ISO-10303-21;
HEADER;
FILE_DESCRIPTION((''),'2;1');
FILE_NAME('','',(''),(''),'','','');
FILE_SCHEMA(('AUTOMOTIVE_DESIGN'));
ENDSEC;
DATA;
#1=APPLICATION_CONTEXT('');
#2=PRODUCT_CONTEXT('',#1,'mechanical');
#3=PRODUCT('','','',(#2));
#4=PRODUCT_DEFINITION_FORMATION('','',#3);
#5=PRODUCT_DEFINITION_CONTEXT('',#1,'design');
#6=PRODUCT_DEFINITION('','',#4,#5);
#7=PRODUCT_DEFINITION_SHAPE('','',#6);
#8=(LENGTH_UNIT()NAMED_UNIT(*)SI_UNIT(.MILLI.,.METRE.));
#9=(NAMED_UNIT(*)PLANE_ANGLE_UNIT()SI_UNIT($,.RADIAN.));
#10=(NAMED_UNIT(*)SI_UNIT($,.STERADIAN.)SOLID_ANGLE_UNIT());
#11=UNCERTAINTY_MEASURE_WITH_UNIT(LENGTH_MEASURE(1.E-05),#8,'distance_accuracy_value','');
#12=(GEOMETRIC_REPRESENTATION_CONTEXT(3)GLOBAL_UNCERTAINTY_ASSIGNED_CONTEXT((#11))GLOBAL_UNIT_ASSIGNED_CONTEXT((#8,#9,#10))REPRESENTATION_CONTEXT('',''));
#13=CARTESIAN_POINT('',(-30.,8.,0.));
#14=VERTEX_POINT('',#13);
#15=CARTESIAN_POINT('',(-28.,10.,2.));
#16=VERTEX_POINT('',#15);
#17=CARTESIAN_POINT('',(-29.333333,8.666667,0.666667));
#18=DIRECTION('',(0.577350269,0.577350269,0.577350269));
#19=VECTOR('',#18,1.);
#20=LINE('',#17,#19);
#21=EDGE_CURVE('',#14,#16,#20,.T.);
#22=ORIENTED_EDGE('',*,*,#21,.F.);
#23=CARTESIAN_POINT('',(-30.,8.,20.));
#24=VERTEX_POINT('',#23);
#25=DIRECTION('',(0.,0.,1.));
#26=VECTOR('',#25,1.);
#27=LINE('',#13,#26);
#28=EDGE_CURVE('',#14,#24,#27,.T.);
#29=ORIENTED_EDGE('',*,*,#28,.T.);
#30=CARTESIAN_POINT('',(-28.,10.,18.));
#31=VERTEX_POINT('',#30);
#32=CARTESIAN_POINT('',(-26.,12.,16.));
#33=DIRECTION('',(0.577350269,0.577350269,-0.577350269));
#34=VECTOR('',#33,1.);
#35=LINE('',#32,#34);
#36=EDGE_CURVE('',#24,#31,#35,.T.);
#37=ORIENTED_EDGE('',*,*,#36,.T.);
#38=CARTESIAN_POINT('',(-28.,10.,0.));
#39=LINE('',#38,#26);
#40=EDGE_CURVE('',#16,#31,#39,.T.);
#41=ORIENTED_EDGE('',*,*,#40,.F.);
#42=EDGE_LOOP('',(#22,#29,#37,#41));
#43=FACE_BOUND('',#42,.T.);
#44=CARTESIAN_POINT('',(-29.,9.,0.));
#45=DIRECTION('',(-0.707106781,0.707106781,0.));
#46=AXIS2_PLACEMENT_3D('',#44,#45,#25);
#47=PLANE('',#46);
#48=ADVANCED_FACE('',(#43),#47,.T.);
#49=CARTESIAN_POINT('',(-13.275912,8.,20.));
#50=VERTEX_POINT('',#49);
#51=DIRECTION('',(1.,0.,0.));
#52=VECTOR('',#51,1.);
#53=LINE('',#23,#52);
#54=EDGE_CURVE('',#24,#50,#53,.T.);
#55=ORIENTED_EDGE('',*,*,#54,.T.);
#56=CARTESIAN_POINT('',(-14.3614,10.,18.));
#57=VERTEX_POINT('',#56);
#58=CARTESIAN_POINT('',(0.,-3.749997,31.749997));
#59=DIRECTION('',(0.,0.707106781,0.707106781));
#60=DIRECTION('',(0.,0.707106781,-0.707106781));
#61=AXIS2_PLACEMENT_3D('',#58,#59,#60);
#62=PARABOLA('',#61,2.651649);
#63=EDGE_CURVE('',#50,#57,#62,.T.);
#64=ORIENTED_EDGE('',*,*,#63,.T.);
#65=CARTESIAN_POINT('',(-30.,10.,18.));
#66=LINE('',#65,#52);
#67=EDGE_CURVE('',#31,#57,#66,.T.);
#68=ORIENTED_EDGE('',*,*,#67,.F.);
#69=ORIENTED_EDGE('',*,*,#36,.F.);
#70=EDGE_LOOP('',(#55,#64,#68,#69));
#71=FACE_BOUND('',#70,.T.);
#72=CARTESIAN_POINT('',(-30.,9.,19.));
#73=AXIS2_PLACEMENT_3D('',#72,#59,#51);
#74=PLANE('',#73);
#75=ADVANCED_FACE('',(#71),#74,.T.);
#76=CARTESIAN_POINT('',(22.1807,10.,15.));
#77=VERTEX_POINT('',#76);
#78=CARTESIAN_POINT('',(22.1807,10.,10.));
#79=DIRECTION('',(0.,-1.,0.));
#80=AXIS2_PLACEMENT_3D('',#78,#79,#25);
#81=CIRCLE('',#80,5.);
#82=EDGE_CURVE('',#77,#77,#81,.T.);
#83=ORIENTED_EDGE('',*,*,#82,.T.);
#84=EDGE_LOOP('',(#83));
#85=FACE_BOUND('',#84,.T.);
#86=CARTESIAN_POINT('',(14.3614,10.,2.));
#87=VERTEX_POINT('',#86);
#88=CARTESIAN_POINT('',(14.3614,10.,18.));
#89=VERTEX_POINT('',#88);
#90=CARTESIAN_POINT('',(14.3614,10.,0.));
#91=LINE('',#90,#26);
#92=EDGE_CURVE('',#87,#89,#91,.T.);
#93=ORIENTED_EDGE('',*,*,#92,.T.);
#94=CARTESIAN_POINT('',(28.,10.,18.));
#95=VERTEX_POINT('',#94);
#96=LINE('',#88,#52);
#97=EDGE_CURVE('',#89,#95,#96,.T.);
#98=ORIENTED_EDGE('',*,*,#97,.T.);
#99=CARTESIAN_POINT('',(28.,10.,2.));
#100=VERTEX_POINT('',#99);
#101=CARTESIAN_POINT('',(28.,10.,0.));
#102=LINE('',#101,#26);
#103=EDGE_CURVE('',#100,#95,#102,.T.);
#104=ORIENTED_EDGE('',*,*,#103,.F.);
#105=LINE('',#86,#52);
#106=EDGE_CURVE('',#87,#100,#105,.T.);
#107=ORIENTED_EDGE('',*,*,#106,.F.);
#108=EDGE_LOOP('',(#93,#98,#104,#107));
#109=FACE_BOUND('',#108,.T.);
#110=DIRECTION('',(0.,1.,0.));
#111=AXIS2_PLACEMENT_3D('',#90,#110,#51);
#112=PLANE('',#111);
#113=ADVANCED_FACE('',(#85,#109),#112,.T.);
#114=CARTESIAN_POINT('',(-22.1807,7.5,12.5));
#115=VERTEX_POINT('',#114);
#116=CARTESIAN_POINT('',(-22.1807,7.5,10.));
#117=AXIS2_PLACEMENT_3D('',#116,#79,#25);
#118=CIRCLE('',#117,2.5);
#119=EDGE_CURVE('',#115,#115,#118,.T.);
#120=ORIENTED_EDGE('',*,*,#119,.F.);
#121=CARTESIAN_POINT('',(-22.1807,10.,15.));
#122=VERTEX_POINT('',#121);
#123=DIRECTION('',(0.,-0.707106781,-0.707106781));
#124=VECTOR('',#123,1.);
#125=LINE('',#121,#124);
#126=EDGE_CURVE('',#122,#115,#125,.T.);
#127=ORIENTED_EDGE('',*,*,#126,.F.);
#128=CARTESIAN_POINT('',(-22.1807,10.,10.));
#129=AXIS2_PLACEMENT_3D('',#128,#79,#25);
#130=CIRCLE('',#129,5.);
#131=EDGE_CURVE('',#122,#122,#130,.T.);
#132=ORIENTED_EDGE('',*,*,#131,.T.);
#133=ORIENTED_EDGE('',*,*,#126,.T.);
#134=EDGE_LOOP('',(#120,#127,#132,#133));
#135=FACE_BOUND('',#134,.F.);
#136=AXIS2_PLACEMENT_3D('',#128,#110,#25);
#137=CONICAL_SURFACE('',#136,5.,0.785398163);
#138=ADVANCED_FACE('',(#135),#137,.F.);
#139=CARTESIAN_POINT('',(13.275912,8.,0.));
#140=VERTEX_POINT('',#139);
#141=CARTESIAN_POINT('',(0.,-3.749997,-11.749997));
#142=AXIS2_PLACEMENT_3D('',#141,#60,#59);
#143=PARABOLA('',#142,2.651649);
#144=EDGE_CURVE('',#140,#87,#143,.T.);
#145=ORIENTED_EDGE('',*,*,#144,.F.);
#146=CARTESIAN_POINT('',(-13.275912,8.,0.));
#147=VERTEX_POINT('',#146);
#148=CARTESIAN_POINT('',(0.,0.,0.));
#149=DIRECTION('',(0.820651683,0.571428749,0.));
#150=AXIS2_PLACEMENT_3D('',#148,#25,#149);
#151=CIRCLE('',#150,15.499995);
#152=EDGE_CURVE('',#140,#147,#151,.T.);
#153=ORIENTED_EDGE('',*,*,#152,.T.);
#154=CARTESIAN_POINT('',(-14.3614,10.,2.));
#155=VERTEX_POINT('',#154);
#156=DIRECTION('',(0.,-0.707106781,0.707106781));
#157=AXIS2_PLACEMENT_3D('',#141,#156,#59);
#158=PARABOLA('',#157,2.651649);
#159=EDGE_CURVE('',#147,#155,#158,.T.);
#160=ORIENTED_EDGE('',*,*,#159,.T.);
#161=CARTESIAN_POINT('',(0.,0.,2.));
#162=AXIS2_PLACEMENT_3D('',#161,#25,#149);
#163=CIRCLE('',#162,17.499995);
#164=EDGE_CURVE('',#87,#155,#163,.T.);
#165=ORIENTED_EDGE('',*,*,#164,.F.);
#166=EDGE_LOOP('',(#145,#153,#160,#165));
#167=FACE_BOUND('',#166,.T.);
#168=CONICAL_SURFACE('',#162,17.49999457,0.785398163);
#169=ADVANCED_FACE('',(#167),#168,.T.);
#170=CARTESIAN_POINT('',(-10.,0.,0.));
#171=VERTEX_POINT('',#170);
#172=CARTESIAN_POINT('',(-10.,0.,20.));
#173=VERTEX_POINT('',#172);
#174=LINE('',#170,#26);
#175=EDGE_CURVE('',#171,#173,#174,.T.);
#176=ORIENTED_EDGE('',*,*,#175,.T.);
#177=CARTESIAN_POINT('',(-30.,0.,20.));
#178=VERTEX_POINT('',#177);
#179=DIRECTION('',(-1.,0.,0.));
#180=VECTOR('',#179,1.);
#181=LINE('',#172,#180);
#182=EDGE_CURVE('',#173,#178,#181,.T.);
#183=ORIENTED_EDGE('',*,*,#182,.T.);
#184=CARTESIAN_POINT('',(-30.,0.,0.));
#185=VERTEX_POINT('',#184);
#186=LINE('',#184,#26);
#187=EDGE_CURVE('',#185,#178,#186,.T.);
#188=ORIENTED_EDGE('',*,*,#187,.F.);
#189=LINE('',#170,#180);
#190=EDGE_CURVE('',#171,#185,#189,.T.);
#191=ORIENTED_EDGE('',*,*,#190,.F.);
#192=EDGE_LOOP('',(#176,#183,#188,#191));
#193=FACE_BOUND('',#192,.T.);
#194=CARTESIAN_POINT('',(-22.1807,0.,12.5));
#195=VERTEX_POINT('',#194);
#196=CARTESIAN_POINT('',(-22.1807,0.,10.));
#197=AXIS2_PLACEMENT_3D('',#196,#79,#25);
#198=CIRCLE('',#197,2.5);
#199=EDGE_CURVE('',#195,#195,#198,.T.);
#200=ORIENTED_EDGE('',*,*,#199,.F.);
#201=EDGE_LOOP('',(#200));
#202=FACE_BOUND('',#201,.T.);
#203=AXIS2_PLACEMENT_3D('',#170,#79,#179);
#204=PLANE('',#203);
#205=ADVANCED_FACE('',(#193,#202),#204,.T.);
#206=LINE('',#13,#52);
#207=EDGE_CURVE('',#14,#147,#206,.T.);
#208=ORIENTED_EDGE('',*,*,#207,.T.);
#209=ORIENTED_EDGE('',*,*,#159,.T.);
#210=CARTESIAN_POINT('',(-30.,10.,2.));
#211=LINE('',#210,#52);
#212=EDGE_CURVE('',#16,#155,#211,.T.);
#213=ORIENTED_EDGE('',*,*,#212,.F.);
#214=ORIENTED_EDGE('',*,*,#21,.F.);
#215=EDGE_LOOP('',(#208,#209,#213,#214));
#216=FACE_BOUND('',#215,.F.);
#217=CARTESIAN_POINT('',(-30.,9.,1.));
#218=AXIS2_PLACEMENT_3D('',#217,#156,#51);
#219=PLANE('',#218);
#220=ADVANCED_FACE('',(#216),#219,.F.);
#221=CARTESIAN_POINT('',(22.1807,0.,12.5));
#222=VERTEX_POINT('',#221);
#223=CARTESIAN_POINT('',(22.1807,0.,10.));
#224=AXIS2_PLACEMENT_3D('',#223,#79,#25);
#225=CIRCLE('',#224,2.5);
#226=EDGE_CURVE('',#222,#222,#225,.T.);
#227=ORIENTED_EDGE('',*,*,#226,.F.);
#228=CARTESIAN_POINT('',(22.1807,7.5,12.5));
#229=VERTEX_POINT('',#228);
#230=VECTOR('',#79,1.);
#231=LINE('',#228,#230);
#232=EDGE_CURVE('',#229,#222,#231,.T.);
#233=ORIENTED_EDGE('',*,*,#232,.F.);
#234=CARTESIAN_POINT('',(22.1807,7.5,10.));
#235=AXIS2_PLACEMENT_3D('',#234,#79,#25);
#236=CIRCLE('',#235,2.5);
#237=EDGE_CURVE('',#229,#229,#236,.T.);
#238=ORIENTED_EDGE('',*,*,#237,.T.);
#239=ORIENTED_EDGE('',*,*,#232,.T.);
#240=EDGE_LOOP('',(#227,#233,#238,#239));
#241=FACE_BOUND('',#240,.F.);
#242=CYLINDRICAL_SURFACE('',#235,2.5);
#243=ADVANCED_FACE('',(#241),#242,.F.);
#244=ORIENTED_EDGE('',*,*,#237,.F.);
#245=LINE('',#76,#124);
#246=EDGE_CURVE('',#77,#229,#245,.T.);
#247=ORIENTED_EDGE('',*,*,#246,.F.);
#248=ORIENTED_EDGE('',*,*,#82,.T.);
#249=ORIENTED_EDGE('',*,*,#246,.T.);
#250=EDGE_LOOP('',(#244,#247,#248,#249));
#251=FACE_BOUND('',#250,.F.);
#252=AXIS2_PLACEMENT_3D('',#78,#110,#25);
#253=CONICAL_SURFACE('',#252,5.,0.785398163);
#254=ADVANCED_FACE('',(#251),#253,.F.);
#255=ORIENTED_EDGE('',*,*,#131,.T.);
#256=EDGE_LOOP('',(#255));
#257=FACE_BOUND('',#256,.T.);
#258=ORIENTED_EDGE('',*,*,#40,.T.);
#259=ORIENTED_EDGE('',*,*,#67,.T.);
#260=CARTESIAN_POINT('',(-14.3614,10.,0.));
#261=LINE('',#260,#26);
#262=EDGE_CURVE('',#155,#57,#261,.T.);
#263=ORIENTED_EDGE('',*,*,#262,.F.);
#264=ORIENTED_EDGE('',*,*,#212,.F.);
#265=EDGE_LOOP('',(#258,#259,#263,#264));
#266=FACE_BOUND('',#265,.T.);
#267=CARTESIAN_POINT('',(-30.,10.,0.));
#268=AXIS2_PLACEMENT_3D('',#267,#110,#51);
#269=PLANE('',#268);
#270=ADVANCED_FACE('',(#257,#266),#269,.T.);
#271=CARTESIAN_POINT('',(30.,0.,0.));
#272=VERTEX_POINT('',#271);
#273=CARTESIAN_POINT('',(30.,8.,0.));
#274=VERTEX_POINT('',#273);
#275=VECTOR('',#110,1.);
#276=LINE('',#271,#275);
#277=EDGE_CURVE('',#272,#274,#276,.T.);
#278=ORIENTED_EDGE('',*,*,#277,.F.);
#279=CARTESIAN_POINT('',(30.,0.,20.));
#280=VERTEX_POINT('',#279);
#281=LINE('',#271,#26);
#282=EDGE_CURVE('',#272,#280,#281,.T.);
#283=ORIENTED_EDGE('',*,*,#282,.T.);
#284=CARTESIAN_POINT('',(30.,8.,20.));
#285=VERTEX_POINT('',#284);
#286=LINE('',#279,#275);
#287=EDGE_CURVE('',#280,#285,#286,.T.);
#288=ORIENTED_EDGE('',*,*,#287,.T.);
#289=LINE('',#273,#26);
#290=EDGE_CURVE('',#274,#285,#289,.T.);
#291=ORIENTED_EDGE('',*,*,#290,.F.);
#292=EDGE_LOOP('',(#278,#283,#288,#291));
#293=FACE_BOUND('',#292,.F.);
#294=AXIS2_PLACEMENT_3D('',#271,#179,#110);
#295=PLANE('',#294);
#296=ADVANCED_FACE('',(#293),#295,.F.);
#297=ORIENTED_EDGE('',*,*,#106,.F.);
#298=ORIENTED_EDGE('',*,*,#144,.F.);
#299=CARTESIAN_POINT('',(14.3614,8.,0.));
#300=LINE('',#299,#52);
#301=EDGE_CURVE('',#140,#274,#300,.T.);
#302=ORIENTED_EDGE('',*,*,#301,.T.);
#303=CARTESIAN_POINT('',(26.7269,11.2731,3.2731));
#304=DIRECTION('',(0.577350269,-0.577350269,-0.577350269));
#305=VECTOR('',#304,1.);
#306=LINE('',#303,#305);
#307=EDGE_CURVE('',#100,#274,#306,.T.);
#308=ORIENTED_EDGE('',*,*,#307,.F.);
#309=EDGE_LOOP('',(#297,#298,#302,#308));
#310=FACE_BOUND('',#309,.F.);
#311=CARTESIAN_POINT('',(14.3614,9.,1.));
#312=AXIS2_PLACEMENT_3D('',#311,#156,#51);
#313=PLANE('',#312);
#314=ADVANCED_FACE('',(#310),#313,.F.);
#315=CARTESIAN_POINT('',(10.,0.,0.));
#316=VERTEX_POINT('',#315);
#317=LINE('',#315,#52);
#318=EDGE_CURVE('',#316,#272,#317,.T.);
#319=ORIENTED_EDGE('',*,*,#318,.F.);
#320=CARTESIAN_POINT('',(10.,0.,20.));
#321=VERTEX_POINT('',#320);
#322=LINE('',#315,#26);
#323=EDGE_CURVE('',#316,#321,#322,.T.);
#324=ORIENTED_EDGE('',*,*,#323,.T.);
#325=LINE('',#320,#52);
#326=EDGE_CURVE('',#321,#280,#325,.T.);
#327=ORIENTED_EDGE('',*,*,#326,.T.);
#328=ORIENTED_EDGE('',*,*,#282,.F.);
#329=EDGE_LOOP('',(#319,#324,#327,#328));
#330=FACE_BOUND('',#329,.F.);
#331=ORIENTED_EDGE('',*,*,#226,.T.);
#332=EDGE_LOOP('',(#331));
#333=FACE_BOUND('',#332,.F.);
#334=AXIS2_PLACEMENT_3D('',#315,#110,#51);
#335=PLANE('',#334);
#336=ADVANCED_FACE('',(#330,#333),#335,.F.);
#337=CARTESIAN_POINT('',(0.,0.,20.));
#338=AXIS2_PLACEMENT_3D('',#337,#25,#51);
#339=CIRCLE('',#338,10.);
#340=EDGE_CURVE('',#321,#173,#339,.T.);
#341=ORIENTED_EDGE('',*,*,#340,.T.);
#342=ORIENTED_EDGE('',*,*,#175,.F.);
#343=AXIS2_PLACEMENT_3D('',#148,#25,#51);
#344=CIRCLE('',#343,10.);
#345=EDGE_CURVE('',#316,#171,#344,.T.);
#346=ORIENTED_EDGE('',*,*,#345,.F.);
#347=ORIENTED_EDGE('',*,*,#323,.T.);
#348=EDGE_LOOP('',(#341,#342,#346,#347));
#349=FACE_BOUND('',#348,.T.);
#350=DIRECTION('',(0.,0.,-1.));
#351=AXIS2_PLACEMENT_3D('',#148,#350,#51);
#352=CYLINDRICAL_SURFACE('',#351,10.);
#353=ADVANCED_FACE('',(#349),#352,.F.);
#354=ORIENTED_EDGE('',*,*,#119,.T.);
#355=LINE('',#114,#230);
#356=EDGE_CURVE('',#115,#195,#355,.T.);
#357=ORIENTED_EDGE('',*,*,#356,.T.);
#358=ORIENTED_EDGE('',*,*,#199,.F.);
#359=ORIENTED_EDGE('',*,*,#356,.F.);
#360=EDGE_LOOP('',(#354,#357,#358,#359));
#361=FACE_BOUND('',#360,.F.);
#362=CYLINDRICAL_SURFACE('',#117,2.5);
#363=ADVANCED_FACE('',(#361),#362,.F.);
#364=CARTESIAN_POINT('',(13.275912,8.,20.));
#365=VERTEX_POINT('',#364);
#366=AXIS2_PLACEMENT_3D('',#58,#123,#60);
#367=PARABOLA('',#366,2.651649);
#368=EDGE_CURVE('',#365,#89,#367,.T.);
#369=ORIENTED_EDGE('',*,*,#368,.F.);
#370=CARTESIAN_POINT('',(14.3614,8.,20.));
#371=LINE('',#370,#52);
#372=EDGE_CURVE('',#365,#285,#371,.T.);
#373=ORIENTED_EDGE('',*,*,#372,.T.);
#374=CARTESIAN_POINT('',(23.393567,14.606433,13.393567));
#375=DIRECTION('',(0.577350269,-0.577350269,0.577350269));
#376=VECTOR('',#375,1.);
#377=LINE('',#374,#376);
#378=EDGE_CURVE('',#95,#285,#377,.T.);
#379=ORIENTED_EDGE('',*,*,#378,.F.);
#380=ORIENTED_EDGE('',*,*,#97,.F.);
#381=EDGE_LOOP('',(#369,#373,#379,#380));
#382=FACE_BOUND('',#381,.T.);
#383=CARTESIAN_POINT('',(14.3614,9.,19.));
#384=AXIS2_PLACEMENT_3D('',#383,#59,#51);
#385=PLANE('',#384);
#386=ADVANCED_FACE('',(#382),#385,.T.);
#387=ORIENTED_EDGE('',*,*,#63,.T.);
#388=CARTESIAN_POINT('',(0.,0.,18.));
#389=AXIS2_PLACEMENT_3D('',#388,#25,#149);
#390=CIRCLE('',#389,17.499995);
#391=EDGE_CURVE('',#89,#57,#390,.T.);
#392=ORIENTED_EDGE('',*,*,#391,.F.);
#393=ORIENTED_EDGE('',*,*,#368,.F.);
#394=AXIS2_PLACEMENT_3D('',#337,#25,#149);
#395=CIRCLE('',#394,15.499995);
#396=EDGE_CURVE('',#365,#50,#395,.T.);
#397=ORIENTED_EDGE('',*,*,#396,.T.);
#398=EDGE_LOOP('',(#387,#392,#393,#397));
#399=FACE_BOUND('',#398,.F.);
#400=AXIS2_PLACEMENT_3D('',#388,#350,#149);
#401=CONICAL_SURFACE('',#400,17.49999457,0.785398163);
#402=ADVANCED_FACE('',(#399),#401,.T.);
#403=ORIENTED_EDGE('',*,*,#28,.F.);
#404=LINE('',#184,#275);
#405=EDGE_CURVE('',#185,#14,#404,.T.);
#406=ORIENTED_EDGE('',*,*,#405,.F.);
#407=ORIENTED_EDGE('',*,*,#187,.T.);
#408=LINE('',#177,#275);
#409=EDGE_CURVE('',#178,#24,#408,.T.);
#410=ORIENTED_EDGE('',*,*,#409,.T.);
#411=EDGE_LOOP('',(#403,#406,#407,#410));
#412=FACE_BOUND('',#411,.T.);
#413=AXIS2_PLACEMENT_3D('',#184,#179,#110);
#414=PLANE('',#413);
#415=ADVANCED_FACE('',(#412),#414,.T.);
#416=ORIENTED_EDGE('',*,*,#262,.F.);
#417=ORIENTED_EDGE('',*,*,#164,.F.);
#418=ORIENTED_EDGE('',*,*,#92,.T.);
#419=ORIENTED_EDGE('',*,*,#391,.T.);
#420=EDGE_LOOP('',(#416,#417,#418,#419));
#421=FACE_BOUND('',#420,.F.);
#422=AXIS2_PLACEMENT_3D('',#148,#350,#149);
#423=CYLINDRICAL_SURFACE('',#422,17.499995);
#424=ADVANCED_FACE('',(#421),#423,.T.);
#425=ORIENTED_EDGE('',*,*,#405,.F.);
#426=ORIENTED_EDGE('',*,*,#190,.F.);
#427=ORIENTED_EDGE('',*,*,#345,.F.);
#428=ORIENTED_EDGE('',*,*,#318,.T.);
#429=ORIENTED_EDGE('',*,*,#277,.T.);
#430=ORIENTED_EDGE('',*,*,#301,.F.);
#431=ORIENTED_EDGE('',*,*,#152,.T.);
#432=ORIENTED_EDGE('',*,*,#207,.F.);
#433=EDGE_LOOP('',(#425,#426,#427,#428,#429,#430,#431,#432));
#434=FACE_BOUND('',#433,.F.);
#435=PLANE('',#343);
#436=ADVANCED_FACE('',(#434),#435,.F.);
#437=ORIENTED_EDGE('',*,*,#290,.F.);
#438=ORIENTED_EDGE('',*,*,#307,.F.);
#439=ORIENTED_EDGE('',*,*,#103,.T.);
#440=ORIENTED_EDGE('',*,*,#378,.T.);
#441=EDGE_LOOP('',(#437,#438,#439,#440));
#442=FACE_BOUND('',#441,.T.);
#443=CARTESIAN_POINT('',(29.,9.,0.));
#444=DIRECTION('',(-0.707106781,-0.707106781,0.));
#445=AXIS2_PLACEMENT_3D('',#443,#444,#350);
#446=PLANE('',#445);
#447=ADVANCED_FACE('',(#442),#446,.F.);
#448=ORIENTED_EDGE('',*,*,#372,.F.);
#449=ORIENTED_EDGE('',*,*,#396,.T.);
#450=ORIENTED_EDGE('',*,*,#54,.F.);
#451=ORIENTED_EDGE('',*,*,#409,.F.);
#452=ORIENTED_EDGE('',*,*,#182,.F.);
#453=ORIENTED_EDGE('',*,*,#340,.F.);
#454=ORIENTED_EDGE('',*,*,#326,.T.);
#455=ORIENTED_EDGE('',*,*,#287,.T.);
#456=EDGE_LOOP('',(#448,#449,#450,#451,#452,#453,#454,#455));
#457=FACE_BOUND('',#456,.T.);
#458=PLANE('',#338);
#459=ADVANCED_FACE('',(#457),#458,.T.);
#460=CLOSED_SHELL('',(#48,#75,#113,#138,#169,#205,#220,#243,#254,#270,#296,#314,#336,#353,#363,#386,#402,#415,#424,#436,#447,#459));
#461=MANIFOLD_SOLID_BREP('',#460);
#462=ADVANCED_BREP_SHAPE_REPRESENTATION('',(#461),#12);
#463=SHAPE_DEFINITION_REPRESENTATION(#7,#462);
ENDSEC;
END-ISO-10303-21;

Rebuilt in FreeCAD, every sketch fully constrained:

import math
import FreeCAD as App
import Part
import Sketcher
from FreeCAD import Vector


def edges_at(feature, points):
    """Names of the edges that pass closest to the given points."""
    edges = feature.Shape.Edges
    near = lambda p: min(range(len(edges)), key=lambda i: edges[i].distToShape(Part.Vertex(*p))[0])
    return sorted({f"Edge{near(p) + 1}" for p in points})

doc = App.newDocument("Part")
body = doc.addObject("PartDesign::Body", "Body")

# Sketch on XY plane
sketch1 = body.newObject("Sketcher::SketchObject", "Sketch")
sketch1.AttachmentSupport = (doc.getObject("XY_Plane"), [""])
sketch1.MapMode = "FlatFace"
sketch1.addGeometry([
    Part.LineSegment(Vector(-30, 0, 0), Vector(-10, 0, 0)),  # 0
    Part.ArcOfCircle(Part.Circle(Vector(0, 0, 0), Vector(0, 0, 1), 10), math.radians(0), math.radians(180)),  # 1
    Part.LineSegment(Vector(10, 0, 0), Vector(30, 0, 0)),  # 2
    Part.LineSegment(Vector(30, 0, 0), Vector(30, 10, 0)),  # 3
    Part.LineSegment(Vector(30, 10, 0), Vector(14.3614, 10, 0)),  # 4
    Part.ArcOfCircle(Part.Circle(Vector(0, 0, 0), Vector(0, 0, 1), 17.499995), math.radians(34.849917), math.radians(145.150083)),  # 5
    Part.LineSegment(Vector(-14.3614, 10, 0), Vector(-30, 10, 0)),  # 6
    Part.LineSegment(Vector(-30, 10, 0), Vector(-30, 0, 0)),  # 7
], False)
sketch1.addConstraint([
    Sketcher.Constraint("Coincident", 0, 2, 1, 2),
    Sketcher.Constraint("Coincident", 1, 1, 2, 1),
    Sketcher.Constraint("Coincident", 2, 2, 3, 1),
    Sketcher.Constraint("Coincident", 3, 2, 4, 1),
    Sketcher.Constraint("Coincident", 4, 2, 5, 1),
    Sketcher.Constraint("Coincident", 5, 2, 6, 1),
    Sketcher.Constraint("Coincident", 6, 2, 7, 1),
    Sketcher.Constraint("Coincident", 7, 2, 0, 1),
    Sketcher.Constraint("Horizontal", 0),
    Sketcher.Constraint("Horizontal", 2),
    Sketcher.Constraint("Vertical", 3),
    Sketcher.Constraint("Horizontal", 4),
    Sketcher.Constraint("Horizontal", 6),
    Sketcher.Constraint("Vertical", 7),
    Sketcher.Constraint("Coincident", 1, 3, -1, 1),
    Sketcher.Constraint("Coincident", 5, 3, -1, 1),
    Sketcher.Constraint("Symmetric", 2, 2, 7, 2, -1, 1),
    Sketcher.Constraint("PointOnObject", 0, 2, -1),
    Sketcher.Constraint("Horizontal", 4, 2, 5, 2),
    Sketcher.Constraint("Radius", 1, 10.0),
    Sketcher.Constraint("Radius", 5, 17.5),
    Sketcher.Constraint("DistanceX", 0, 1, 0, 2, 20.0),
    Sketcher.Constraint("DistanceY", 3, 1, 3, 2, 10.0),
])
pad1 = body.newObject("PartDesign::Pad", "Pad")
pad1.Profile = sketch1
pad1.Length = 20

# Sketch on XZ plane
sketch2 = body.newObject("Sketcher::SketchObject", "Sketch001")
sketch2.AttachmentSupport = (doc.getObject("XZ_Plane"), [""])
sketch2.MapMode = "FlatFace"
sketch2.AttachmentOffset = App.Placement(Vector(0, 0, -10), App.Rotation())
sketch2.addGeometry(Part.Circle(Vector(22.1807, 10, 0), Vector(0, 0, 1), 2.5), False)
sketch2.addConstraint([
    Sketcher.Constraint("Diameter", 0, 5.0),
    Sketcher.Constraint("DistanceY", -1, 1, 0, 3, 10.0),
    Sketcher.Constraint("DistanceX", -1, 1, 0, 3, 22.1807),
])
doc.recompute()
hole = body.newObject("PartDesign::Hole", "Hole")
hole.Profile = sketch2
hole.ThreadType = "None"
hole.Diameter = 5
hole.DepthType = "Dimension"
hole.Depth = 10
hole.DrillPoint = "Angled"
hole.DrillPointAngle = 118
hole.HoleCutType = "Countersink"
hole.HoleCutDiameter = 10
hole.HoleCutCountersinkAngle = 90
hole.Reversed = True

# Sketch on XZ plane
sketch3 = body.newObject("Sketcher::SketchObject", "Sketch002")
sketch3.AttachmentSupport = (doc.getObject("XZ_Plane"), [""])
sketch3.MapMode = "FlatFace"
sketch3.AttachmentOffset = App.Placement(Vector(0, 0, -10), App.Rotation())
sketch3.addGeometry(Part.Circle(Vector(-22.1807, 10, 0), Vector(0, 0, 1), 2.5), False)
sketch3.addConstraint([
    Sketcher.Constraint("Diameter", 0, 5.0),
    Sketcher.Constraint("DistanceY", -1, 1, 0, 3, 10.0),
    Sketcher.Constraint("DistanceX", 0, 3, -1, 1, 22.1807),
])
doc.recompute()
hole2 = body.newObject("PartDesign::Hole", "Hole001")
hole2.Profile = sketch3
hole2.ThreadType = "None"
hole2.Diameter = 5
hole2.DepthType = "Dimension"
hole2.Depth = 10
hole2.DrillPoint = "Angled"
hole2.DrillPointAngle = 118
hole2.HoleCutType = "Countersink"
hole2.HoleCutDiameter = 10
hole2.HoleCutCountersinkAngle = 90
hole2.Reversed = True
doc.recompute()

chamfer = body.newObject("PartDesign::Chamfer", "Chamfer")
chamfer.Base = (hole2, edges_at(hole2, [
    (-30, 10, 10),
    (30, 10, 10),
    (22.181, 10, 0),
    (-22.181, 10, 0),
    (-22.181, 10, 20),
    (22.181, 10, 20),
    (0, 17.5, 20),
    (0, 17.5, 0),
]))
chamfer.Size = 2

doc.recompute()
